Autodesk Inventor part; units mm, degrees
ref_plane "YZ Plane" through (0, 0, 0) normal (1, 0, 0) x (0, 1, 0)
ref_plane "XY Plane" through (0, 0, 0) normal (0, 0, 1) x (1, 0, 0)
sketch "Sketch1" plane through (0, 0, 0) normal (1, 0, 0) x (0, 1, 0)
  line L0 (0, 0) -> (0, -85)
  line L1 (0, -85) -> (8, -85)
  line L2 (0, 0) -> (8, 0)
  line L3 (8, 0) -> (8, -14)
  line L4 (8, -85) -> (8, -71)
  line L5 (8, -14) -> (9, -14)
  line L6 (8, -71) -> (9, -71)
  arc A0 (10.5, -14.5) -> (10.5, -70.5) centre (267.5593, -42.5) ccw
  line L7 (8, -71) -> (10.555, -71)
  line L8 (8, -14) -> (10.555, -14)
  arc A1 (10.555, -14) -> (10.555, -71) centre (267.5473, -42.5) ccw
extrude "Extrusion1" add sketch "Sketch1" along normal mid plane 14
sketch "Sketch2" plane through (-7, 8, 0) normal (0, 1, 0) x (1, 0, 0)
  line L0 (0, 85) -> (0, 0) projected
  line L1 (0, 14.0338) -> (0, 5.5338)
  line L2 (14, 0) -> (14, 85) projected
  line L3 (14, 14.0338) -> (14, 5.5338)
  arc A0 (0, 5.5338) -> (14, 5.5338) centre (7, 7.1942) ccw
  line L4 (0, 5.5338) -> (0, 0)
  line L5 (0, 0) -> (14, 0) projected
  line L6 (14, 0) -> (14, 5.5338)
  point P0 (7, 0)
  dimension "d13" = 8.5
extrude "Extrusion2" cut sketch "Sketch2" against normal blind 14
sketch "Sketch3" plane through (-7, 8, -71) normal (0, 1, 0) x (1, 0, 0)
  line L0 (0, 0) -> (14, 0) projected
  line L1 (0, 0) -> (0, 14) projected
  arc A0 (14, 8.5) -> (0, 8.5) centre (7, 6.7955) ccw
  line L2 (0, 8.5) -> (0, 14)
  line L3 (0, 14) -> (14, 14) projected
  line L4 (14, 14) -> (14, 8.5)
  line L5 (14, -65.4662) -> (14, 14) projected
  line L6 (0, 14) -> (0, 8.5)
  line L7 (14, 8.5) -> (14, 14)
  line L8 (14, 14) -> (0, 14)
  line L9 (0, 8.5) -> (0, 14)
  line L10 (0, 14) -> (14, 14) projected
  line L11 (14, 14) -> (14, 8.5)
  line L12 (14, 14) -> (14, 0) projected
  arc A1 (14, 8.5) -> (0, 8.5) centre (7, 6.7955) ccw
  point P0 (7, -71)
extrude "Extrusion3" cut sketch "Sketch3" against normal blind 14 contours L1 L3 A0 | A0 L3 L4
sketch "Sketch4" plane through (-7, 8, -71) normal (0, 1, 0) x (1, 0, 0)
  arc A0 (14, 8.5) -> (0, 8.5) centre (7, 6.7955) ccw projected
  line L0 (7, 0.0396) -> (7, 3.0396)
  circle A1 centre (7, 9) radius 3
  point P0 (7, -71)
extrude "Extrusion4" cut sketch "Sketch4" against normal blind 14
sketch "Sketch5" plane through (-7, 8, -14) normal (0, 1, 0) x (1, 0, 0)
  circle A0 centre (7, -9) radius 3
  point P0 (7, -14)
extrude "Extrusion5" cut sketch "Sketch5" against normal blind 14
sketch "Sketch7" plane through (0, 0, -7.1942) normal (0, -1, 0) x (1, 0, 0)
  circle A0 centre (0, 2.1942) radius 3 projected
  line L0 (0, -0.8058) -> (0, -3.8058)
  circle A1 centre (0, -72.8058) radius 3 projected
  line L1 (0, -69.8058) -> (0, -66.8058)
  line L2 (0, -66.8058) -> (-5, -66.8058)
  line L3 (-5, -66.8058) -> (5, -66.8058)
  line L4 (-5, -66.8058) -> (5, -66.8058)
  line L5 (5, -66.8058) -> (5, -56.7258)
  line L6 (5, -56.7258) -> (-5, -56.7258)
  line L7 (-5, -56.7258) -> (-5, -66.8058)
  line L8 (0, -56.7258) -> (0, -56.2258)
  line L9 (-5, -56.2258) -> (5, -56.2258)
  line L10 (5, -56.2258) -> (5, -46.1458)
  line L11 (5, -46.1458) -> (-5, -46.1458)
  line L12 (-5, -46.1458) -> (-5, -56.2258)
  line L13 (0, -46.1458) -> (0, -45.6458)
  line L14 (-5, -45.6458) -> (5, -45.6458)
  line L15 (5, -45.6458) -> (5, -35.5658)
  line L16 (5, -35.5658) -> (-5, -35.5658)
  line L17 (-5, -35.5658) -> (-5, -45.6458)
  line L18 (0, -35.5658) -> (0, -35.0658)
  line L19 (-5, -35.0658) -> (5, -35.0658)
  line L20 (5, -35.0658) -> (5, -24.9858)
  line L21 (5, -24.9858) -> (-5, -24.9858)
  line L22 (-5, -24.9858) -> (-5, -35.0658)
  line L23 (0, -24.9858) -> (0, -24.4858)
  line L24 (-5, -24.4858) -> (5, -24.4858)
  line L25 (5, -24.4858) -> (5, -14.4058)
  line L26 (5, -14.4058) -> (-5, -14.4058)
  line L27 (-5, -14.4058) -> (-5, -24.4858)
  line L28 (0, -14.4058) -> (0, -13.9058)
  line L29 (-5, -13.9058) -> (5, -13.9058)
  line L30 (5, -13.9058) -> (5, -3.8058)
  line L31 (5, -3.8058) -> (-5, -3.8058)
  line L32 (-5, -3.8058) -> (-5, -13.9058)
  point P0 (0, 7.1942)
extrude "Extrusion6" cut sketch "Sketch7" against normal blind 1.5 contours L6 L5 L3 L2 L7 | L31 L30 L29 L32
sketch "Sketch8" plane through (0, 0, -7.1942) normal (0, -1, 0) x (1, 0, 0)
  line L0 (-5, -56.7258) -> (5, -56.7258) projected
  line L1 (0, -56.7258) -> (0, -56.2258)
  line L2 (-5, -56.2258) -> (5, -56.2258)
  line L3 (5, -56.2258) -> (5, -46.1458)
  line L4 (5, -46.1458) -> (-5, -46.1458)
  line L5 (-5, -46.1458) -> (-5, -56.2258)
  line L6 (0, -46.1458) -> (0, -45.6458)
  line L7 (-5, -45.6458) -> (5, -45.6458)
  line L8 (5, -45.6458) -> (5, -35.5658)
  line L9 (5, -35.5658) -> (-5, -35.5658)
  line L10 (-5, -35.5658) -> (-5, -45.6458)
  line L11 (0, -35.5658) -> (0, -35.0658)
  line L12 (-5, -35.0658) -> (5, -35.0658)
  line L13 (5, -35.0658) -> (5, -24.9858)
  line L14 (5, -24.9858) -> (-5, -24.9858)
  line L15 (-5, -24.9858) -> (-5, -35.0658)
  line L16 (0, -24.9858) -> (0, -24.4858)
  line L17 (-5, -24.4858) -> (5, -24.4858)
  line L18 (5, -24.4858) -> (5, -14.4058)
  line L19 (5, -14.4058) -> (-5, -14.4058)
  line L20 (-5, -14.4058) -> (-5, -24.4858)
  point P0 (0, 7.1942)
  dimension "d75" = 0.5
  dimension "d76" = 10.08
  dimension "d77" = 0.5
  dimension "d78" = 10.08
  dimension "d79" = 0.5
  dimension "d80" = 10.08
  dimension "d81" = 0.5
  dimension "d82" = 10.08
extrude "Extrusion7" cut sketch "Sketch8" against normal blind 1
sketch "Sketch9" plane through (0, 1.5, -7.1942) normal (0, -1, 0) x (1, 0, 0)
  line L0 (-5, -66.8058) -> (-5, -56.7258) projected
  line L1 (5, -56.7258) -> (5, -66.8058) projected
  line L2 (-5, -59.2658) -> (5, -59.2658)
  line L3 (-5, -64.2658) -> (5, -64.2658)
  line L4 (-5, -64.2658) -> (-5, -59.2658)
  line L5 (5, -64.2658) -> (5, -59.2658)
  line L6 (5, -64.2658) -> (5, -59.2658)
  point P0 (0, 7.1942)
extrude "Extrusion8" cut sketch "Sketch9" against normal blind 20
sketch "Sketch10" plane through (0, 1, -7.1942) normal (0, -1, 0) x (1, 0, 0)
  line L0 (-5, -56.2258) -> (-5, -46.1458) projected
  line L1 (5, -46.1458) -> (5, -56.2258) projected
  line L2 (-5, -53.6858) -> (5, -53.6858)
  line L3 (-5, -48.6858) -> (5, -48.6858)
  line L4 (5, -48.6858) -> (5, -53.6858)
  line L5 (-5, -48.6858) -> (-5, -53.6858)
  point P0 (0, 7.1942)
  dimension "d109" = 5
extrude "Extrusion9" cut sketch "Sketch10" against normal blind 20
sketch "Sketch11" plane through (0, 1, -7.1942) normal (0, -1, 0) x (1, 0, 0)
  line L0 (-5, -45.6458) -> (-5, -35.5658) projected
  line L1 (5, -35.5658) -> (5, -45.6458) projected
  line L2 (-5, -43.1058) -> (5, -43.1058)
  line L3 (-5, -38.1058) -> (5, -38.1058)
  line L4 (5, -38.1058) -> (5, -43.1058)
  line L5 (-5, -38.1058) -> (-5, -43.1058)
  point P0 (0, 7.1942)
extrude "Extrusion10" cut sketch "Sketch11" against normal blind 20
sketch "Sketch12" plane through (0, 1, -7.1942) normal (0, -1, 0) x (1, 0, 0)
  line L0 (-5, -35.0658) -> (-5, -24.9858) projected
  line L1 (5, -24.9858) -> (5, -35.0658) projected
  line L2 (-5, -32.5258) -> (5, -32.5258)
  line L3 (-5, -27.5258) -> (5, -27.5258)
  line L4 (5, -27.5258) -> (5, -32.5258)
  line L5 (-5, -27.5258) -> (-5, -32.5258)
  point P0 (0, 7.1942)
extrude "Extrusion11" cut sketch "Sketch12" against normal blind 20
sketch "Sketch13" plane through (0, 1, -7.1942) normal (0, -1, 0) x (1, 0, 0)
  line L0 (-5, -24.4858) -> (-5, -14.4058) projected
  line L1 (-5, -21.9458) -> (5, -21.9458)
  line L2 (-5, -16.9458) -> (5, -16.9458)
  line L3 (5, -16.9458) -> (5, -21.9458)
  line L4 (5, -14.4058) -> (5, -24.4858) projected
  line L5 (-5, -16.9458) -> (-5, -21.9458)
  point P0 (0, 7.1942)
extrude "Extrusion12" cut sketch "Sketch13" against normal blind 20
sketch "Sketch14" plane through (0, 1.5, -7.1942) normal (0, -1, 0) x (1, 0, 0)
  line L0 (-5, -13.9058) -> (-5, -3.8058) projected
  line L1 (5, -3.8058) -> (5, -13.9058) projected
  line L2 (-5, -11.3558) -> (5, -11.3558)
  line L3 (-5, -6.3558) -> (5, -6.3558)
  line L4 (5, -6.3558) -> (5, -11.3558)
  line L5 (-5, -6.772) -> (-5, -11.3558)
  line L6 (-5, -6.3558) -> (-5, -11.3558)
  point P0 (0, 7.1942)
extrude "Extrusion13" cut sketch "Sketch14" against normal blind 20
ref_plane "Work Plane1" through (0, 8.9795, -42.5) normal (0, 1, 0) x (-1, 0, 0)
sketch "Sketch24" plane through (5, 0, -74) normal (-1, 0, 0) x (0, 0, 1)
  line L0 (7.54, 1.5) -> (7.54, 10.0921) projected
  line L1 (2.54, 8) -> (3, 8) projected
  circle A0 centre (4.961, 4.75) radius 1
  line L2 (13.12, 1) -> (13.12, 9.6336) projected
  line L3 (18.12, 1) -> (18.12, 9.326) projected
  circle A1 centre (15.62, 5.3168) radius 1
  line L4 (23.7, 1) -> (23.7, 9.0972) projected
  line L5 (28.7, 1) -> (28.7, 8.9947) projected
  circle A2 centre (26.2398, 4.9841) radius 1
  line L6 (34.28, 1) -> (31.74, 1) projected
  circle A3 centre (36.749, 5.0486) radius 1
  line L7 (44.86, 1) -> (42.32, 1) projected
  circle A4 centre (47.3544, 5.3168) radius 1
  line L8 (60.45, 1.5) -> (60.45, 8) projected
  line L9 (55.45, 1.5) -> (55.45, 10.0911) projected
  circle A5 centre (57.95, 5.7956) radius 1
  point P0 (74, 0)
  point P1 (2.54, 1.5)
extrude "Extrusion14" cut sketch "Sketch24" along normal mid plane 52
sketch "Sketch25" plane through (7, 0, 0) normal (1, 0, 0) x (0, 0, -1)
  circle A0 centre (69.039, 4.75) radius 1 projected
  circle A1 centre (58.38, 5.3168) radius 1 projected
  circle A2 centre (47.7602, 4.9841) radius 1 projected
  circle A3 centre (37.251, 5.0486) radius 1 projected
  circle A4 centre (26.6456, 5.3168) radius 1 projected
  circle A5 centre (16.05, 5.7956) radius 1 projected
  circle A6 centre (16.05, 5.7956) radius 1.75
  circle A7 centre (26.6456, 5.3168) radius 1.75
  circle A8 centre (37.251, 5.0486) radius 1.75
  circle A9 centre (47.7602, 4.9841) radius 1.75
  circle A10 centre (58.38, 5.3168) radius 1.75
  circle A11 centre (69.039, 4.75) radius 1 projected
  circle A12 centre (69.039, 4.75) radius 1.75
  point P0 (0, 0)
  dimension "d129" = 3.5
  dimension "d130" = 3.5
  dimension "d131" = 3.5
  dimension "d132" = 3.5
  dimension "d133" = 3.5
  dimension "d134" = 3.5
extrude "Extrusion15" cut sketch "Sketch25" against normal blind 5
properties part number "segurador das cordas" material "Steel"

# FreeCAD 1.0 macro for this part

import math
import FreeCAD as App
import Part
import Sketcher
from FreeCAD import Vector
Q = App.Units.Quantity


def add_polygon(sketch, points):
    """Adds a closed chain of lines whose ends are joined by coincident constraints."""
    first, n = sketch.GeometryCount, len(points)
    for a, b in zip(points, points[1:] + points[:1]):
        sketch.addGeometry(Part.LineSegment(App.Vector(*a, 0), App.Vector(*b, 0)), False)
    for i in range(n):
        sketch.addConstraint(Sketcher.Constraint("Coincident", first + i, 2, first + (i + 1) % n, 1))

doc = App.newDocument("Part")
body = doc.addObject("PartDesign::Body", "Body")

# Sketch on YZ plane
sketch1 = doc.addObject("Sketcher::SketchObject", "Sketch")
body.addObject(sketch1)
sketch1.AttachmentSupport = (doc.YZ_Plane, [""])
sketch1.MapMode = "FlatFace"
sketch1.addGeometry(Part.LineSegment(Vector(8, 0, 0), Vector(0, 0, 0)), False)
sketch1.addGeometry(Part.LineSegment(Vector(0, 0, 0), Vector(0, -85, 0)), False)
sketch1.addGeometry(Part.LineSegment(Vector(0, -85, 0), Vector(8, -85, 0)), False)
sketch1.addGeometry(Part.LineSegment(Vector(8, -85, 0), Vector(8, -71, 0)), False)
sketch1.addGeometry(Part.LineSegment(Vector(8, -71, 0), Vector(10.555, -71, 0)), False)
sketch1.addGeometry(Part.ArcOfCircle(Part.Circle(Vector(267.5473, -42.5, 0), Vector(0, 0, 1), 258.567771), math.radians(-173.783318), math.radians(-173.671855)), False)
sketch1.addGeometry(Part.ArcOfCircle(Part.Circle(Vector(267.5593, -42.5, 0), Vector(0, 0, 1), 258.579743), math.radians(173.783606), math.radians(186.216394)), False)
sketch1.addGeometry(Part.ArcOfCircle(Part.Circle(Vector(267.5473, -42.5, 0), Vector(0, 0, 1), 258.567771), math.radians(173.671855), math.radians(173.783318)), False)
sketch1.addGeometry(Part.LineSegment(Vector(10.555, -14, 0), Vector(8, -14, 0)), False)
sketch1.addGeometry(Part.LineSegment(Vector(8, -14, 0), Vector(8, 0, 0)), False)
sketch1.addConstraint(Sketcher.Constraint("Coincident", 0, 2, 1, 1))
sketch1.addConstraint(Sketcher.Constraint("Coincident", 1, 2, 2, 1))
sketch1.addConstraint(Sketcher.Constraint("Coincident", 2, 2, 3, 1))
sketch1.addConstraint(Sketcher.Constraint("Coincident", 3, 2, 4, 1))
sketch1.addConstraint(Sketcher.Constraint("Coincident", 4, 2, 5, 2))
sketch1.addConstraint(Sketcher.Constraint("Coincident", 5, 1, 6, 2))
sketch1.addConstraint(Sketcher.Constraint("Coincident", 6, 1, 7, 2))
sketch1.addConstraint(Sketcher.Constraint("Coincident", 7, 1, 8, 1))
sketch1.addConstraint(Sketcher.Constraint("Coincident", 8, 2, 9, 1))
sketch1.addConstraint(Sketcher.Constraint("Coincident", 9, 2, 0, 1))
sketch1.addConstraint(Sketcher.Constraint("Horizontal", 0))
sketch1.addConstraint(Sketcher.Constraint("Vertical", 1))
sketch1.addConstraint(Sketcher.Constraint("Horizontal", 2))
sketch1.addConstraint(Sketcher.Constraint("Vertical", 3))
sketch1.addConstraint(Sketcher.Constraint("Horizontal", 4))
sketch1.addConstraint(Sketcher.Constraint("Horizontal", 8))
sketch1.addConstraint(Sketcher.Constraint("Vertical", 9))
sketch1.addConstraint(Sketcher.Constraint("Coincident", 0, 2, -1, 1))
sketch1.addConstraint(Sketcher.Constraint("Coincident", 7, 3, 5, 3))
sketch1.addConstraint(Sketcher.Constraint("DistanceX", 0, 2, 0, 1, Q("8 mm")))
sketch1.addConstraint(Sketcher.Constraint("DistanceX", 2, 1, 2, 2, Q("8 mm")))
sketch1.addConstraint(Sketcher.Constraint("DistanceY", 1, 2, 1, 1, Q("85 mm")))
sketch1.addConstraint(Sketcher.Constraint("DistanceY", 3, 1, 3, 2, Q("14 mm")))
sketch1.addConstraint(Sketcher.Constraint("DistanceY", 9, 1, 9, 2, Q("14 mm")))
sketch1.addConstraint(Sketcher.Constraint("DistanceY", 5, 1, 6, 1, Q("56 mm")))
sketch1.addConstraint(Sketcher.Constraint("DistanceY", 5, 3, -1, 1, Q("42.5 mm")))
sketch1.addConstraint(Sketcher.Constraint("DistanceY", 6, 3, -1, 1, Q("42.5 mm")))
sketch1.addConstraint(Sketcher.Constraint("DistanceX", -1, 1, 5, 1, Q("10.5 mm")))
sketch1.addConstraint(Sketcher.Constraint("DistanceY", 5, 1, -1, 1, Q("70.5 mm")))
sketch1.addConstraint(Sketcher.Constraint("Radius", 5, Q("258.5678 mm")))
sketch1.addConstraint(Sketcher.Constraint("Radius", 6, Q("258.5797 mm")))
pad1 = doc.addObject("PartDesign::Pad", "Pad")
body.addObject(pad1)
pad1.Profile = sketch1
pad1.Length = 14
pad1.Midplane = True

# Sketch on XZ plane
sketch2 = doc.addObject("Sketcher::SketchObject", "Sketch001")
body.addObject(sketch2)
sketch2.AttachmentSupport = (doc.XZ_Plane, [""])
sketch2.MapMode = "FlatFace"
sketch2.AttachmentOffset = App.Placement(Vector(0, 0, -8), App.Rotation())
sketch2.addGeometry(Part.ArcOfCircle(Part.Circle(Vector(0, -7, 0), Vector(0, 0, 1), 7), math.radians(90), math.radians(167)), False)
sketch2.addGeometry(Part.LineSegment(Vector(-7, -6, 0), Vector(-7, 0, 0)), False)
sketch2.addGeometry(Part.LineSegment(Vector(-7, 0, 0), Vector(0, 0, 0)), False)
sketch2.addGeometry(Part.ArcOfCircle(Part.Circle(Vector(0, -7, 0), Vector(0, 0, 1), 7), math.radians(13), math.radians(90)), False)
sketch2.addGeometry(Part.LineSegment(Vector(0, 0, 0), Vector(7, 0, 0)), False)
sketch2.addGeometry(Part.LineSegment(Vector(7, 0, 0), Vector(7, -6, 0)), False)
sketch2.addConstraint(Sketcher.Constraint("Coincident", 0, 2, 1, 1))
sketch2.addConstraint(Sketcher.Constraint("Coincident", 1, 2, 2, 1))
sketch2.addConstraint(Sketcher.Constraint("Tangent", 2, 2, 0, 1))
sketch2.addConstraint(Sketcher.Constraint("Tangent", 3, 2, 4, 1))
sketch2.addConstraint(Sketcher.Constraint("Coincident", 4, 2, 5, 1))
sketch2.addConstraint(Sketcher.Constraint("Coincident", 5, 2, 3, 1))
sketch2.addConstraint(Sketcher.Constraint("Vertical", 1))
sketch2.addConstraint(Sketcher.Constraint("Horizontal", 2))
sketch2.addConstraint(Sketcher.Constraint("Horizontal", 4))
sketch2.addConstraint(Sketcher.Constraint("Vertical", 5))
sketch2.addConstraint(Sketcher.Constraint("Coincident", 2, 2, -1, 1))
sketch2.addConstraint(Sketcher.Constraint("Coincident", 3, 2, -1, 1))
sketch2.addConstraint(Sketcher.Constraint("Equal", 0, 3))
sketch2.addConstraint(Sketcher.Constraint("Horizontal", 0, 2, 5, 2))
sketch2.addConstraint(Sketcher.Constraint("DistanceX", 2, 1, 2, 2, Q("7 mm")))
sketch2.addConstraint(Sketcher.Constraint("Radius", 0, Q("7.1942 mm")))
pocket1 = doc.addObject("PartDesign::Pocket", "Pocket")
body.addObject(pocket1)
pocket1.Profile = sketch2
pocket1.Length = 14
pocket1.Reversed = True

# Sketch on XZ plane
sketch3 = doc.addObject("Sketcher::SketchObject", "Sketch002")
body.addObject(sketch3)
sketch3.AttachmentSupport = (doc.XZ_Plane, [""])
sketch3.MapMode = "FlatFace"
sketch3.AttachmentOffset = App.Placement(Vector(0, 0, -8), App.Rotation())
sketch3.addGeometry(Part.LineSegment(Vector(-7, -85, 0), Vector(-7, -80, 0)), False)
sketch3.addGeometry(Part.ArcOfCircle(Part.Circle(Vector(0, -78, 0), Vector(0, 0, 1), 7), math.radians(-166), math.radians(-90)), False)
sketch3.addGeometry(Part.LineSegment(Vector(0, -85, 0), Vector(-7, -85, 0)), False)
sketch3.addGeometry(Part.ArcOfCircle(Part.Circle(Vector(0, -78, 0), Vector(0, 0, 1), 7), math.radians(-90), math.radians(-14)), False)
sketch3.addGeometry(Part.LineSegment(Vector(7, -80, 0), Vector(7, -85, 0)), False)
sketch3.addGeometry(Part.LineSegment(Vector(7, -85, 0), Vector(0, -85, 0)), False)
sketch3.addConstraint(Sketcher.Constraint("Coincident", 0, 2, 1, 1))
sketch3.addConstraint(Sketcher.Constraint("Tangent", 1, 2, 2, 1))
sketch3.addConstraint(Sketcher.Constraint("Coincident", 2, 2, 0, 1))
sketch3.addConstraint(Sketcher.Constraint("Coincident", 3, 2, 4, 1))
sketch3.addConstraint(Sketcher.Constraint("Coincident", 4, 2, 5, 1))
sketch3.addConstraint(Sketcher.Constraint("Tangent", 5, 2, 3, 1))
sketch3.addConstraint(Sketcher.Constraint("Vertical", 0))
sketch3.addConstraint(Sketcher.Constraint("Horizontal", 2))
sketch3.addConstraint(Sketcher.Constraint("Vertical", 4))
sketch3.addConstraint(Sketcher.Constraint("Horizontal", 5))
sketch3.addConstraint(Sketcher.Constraint("Coincident", 3, 3, 1, 3))
sketch3.addConstraint(Sketcher.Constraint("Equal", 1, 3))
sketch3.addConstraint(Sketcher.Constraint("Symmetric", 0, 2, 3, 2, -2))
sketch3.addConstraint(Sketcher.Constraint("DistanceX", 2, 2, 2, 1, Q("7 mm")))
sketch3.addConstraint(Sketcher.Constraint("DistanceY", 0, 1, 0, 2, Q("5.5 mm")))
sketch3.addConstraint(Sketcher.Constraint("DistanceY", 1, 2, -1, 1, Q("85 mm")))
pocket2 = doc.addObject("PartDesign::Pocket", "Pocket001")
body.addObject(pocket2)
pocket2.Profile = sketch3
pocket2.Length = 14
pocket2.Reversed = True

# Sketch on XZ plane
sketch4 = doc.addObject("Sketcher::SketchObject", "Sketch003")
body.addObject(sketch4)
sketch4.AttachmentSupport = (doc.XZ_Plane, [""])
sketch4.MapMode = "FlatFace"
sketch4.AttachmentOffset = App.Placement(Vector(0, 0, -8), App.Rotation())
sketch4.addGeometry(Part.Circle(Vector(0, -80, 0), Vector(0, 0, 1), 3), False)
sketch4.addConstraint(Sketcher.Constraint("PointOnObject", 0, 3, -2))
sketch4.addConstraint(Sketcher.Constraint("Diameter", 0, Q("6 mm")))
sketch4.addConstraint(Sketcher.Constraint("DistanceY", 0, 3, -1, 1, Q("80 mm")))
pocket3 = doc.addObject("PartDesign::Pocket", "Pocket002")
body.addObject(pocket3)
pocket3.Profile = sketch4
pocket3.Length = 14
pocket3.Reversed = True

# Sketch on XZ plane
sketch5 = doc.addObject("Sketcher::SketchObject", "Sketch004")
body.addObject(sketch5)
sketch5.AttachmentSupport = (doc.XZ_Plane, [""])
sketch5.MapMode = "FlatFace"
sketch5.AttachmentOffset = App.Placement(Vector(0, 0, -8), App.Rotation())
sketch5.addGeometry(Part.Circle(Vector(0, -5, 0), Vector(0, 0, 1), 3), False)
sketch5.addConstraint(Sketcher.Constraint("PointOnObject", 0, 3, -2))
sketch5.addConstraint(Sketcher.Constraint("Diameter", 0, Q("6 mm")))
sketch5.addConstraint(Sketcher.Constraint("DistanceY", 0, 3, -1, 1, Q("5 mm")))
pocket4 = doc.addObject("PartDesign::Pocket", "Pocket003")
body.addObject(pocket4)
pocket4.Profile = sketch5
pocket4.Length = 14
pocket4.Reversed = True

# Sketch on XZ plane
sketch6 = doc.addObject("Sketcher::SketchObject", "Sketch005")
body.addObject(sketch6)
sketch6.AttachmentSupport = (doc.XZ_Plane, [""])
sketch6.MapMode = "FlatFace"
add_polygon(sketch6, [(5, -64), (-5, -64), (-5, -74), (5, -74)])  # lines 0-3
add_polygon(sketch6, [(5, -11), (-5, -11), (-5, -21), (5, -21)])  # lines 4-7
sketch6.addConstraint(Sketcher.Constraint("Horizontal", 0))
sketch6.addConstraint(Sketcher.Constraint("Vertical", 1))
sketch6.addConstraint(Sketcher.Constraint("Horizontal", 2))
sketch6.addConstraint(Sketcher.Constraint("Vertical", 3))
sketch6.addConstraint(Sketcher.Constraint("Horizontal", 4))
sketch6.addConstraint(Sketcher.Constraint("Vertical", 5))
sketch6.addConstraint(Sketcher.Constraint("Horizontal", 6))
sketch6.addConstraint(Sketcher.Constraint("Vertical", 7))
sketch6.addConstraint(Sketcher.Constraint("Vertical", 1, 2, 4, 2))
sketch6.addConstraint(Sketcher.Constraint("Vertical", 3, 2, 6, 2))
sketch6.addConstraint(Sketcher.Constraint("DistanceX", 0, 2, 0, 1, Q("10 mm")))
sketch6.addConstraint(Sketcher.Constraint("DistanceY", 5, 2, 5, 1, Q("10.1 mm")))
sketch6.addConstraint(Sketcher.Constraint("DistanceX", 0, 2, -1, 1, Q("5 mm")))
sketch6.addConstraint(Sketcher.Constraint("DistanceY", 1, 2, -1, 1, Q("74 mm")))
sketch6.addConstraint(Sketcher.Constraint("DistanceY", 4, 2, -1, 1, Q("11 mm")))
sketch6.addConstraint(Sketcher.Constraint("DistanceY", 1, 2, 1, 1, Q("10.08 mm")))
pocket5 = doc.addObject("PartDesign::Pocket", "Pocket004")
body.addObject(pocket5)
pocket5.Profile = sketch6
pocket5.Length = 1.5

# Sketch on XZ plane
sketch7 = doc.addObject("Sketcher::SketchObject", "Sketch006")
body.addObject(sketch7)
sketch7.AttachmentSupport = (doc.XZ_Plane, [""])
sketch7.MapMode = "FlatFace"
add_polygon(sketch7, [(-5, -53), (-5, -63), (5, -63), (5, -53)])  # lines 0-3
add_polygon(sketch7, [(-5, -32), (5, -32), (5, -22), (-5, -22)])  # lines 4-7
add_polygon(sketch7, [(-5, -42), (5, -42), (5, -32), (-5, -32)])  # lines 8-11
add_polygon(sketch7, [(-5, -53), (5, -53), (5, -43), (-5, -43)])  # lines 12-15
sketch7.addConstraint(Sketcher.Constraint("Vertical", 0))
sketch7.addConstraint(Sketcher.Constraint("Horizontal", 1))
sketch7.addConstraint(Sketcher.Constraint("Vertical", 2))
sketch7.addConstraint(Sketcher.Constraint("Horizontal", 3))
sketch7.addConstraint(Sketcher.Constraint("Horizontal", 4))
sketch7.addConstraint(Sketcher.Constraint("Vertical", 5))
sketch7.addConstraint(Sketcher.Constraint("Horizontal", 6))
sketch7.addConstraint(Sketcher.Constraint("Vertical", 7))
sketch7.addConstraint(Sketcher.Constraint("Horizontal", 8))
sketch7.addConstraint(Sketcher.Constraint("Vertical", 9))
sketch7.addConstraint(Sketcher.Constraint("Horizontal", 10))
sketch7.addConstraint(Sketcher.Constraint("Vertical", 11))
sketch7.addConstraint(Sketcher.Constraint("Horizontal", 12))
sketch7.addConstraint(Sketcher.Constraint("Vertical", 13))
sketch7.addConstraint(Sketcher.Constraint("Horizontal", 14))
sketch7.addConstraint(Sketcher.Constraint("Vertical", 15))
sketch7.addConstraint(Sketcher.Constraint("Vertical", 2, 2, 4, 2))
sketch7.addConstraint(Sketcher.Constraint("Vertical", 3, 2, 6, 2))
sketch7.addConstraint(Sketcher.Constraint("Vertical", 5, 2, 8, 2))
sketch7.addConstraint(Sketcher.Constraint("Vertical", 7, 2, 10, 2))
sketch7.addConstraint(Sketcher.Constraint("Vertical", 9, 2, 12, 2))
sketch7.addConstraint(Sketcher.Constraint("Vertical", 11, 2, 14, 2))
sketch7.addConstraint(Sketcher.Constraint("Equal", 2, 5))
sketch7.addConstraint(Sketcher.Constraint("Equal", 7, 9))
sketch7.addConstraint(Sketcher.Constraint("Equal", 11, 13))
sketch7.addConstraint(Sketcher.Constraint("DistanceY", 0, 2, 0, 1, Q("10.08 mm")))
sketch7.addConstraint(Sketcher.Constraint("DistanceY", 9, 2, 4, 2, Q("0.5 mm")))
sketch7.addConstraint(Sketcher.Constraint("DistanceY", 2, 2, 12, 2, Q("0.5 mm")))
sketch7.addConstraint(Sketcher.Constraint("DistanceY", 13, 2, 8, 2, Q("0.5 mm")))
sketch7.addConstraint(Sketcher.Constraint("DistanceX", 1, 1, 1, 2, Q("10 mm")))
sketch7.addConstraint(Sketcher.Constraint("DistanceX", 0, 2, -1, 1, Q("5 mm")))
sketch7.addConstraint(Sketcher.Constraint("DistanceY", 5, 2, -1, 1, Q("21.6 mm")))
pocket6 = doc.addObject("PartDesign::Pocket", "Pocket005")
body.addObject(pocket6)
pocket6.Profile = sketch7
pocket6.Length = 1

# Sketch on XZ plane
sketch8 = doc.addObject("Sketcher::SketchObject", "Sketch007")
body.addObject(sketch8)
sketch8.AttachmentSupport = (doc.XZ_Plane, [""])
sketch8.MapMode = "FlatFace"
sketch8.AttachmentOffset = App.Placement(Vector(0, 0, -1.5), App.Rotation())
add_polygon(sketch8, [(-5, -66), (-5, -71), (5, -71), (5, -66)])  # lines 0-3
sketch8.addConstraint(Sketcher.Constraint("Vertical", 0))
sketch8.addConstraint(Sketcher.Constraint("Horizontal", 1))
sketch8.addConstraint(Sketcher.Constraint("Vertical", 2))
sketch8.addConstraint(Sketcher.Constraint("Horizontal", 3))
sketch8.addConstraint(Sketcher.Constraint("DistanceX", 1, 1, 1, 2, Q("10 mm")))
sketch8.addConstraint(Sketcher.Constraint("DistanceY", 0, 2, 0, 1, Q("5 mm")))
sketch8.addConstraint(Sketcher.Constraint("DistanceX", 0, 2, -1, 1, Q("5 mm")))
sketch8.addConstraint(Sketcher.Constraint("DistanceY", 0, 2, -1, 1, Q("71.46 mm")))
pocket7 = doc.addObject("PartDesign::Pocket", "Pocket006")
body.addObject(pocket7)
pocket7.Profile = sketch8
pocket7.Length = 20

# Sketch on XZ plane
sketch9 = doc.addObject("Sketcher::SketchObject", "Sketch008")
body.addObject(sketch9)
sketch9.AttachmentSupport = (doc.XZ_Plane, [""])
sketch9.MapMode = "FlatFace"
sketch9.AttachmentOffset = App.Placement(Vector(0, 0, -1), App.Rotation())
add_polygon(sketch9, [(-5, -56), (-5, -61), (5, -61), (5, -56)])  # lines 0-3
sketch9.addConstraint(Sketcher.Constraint("Vertical", 0))
sketch9.addConstraint(Sketcher.Constraint("Horizontal", 1))
sketch9.addConstraint(Sketcher.Constraint("Vertical", 2))
sketch9.addConstraint(Sketcher.Constraint("Horizontal", 3))
sketch9.addConstraint(Sketcher.Constraint("DistanceY", 0, 2, 0, 1, Q("5 mm")))
sketch9.addConstraint(Sketcher.Constraint("DistanceX", 0, 2, -1, 1, Q("5 mm")))
sketch9.addConstraint(Sketcher.Constraint("DistanceX", -1, 1, 1, 2, Q("5 mm")))
sketch9.addConstraint(Sketcher.Constraint("DistanceY", 0, 2, -1, 1, Q("60.88 mm")))
pocket8 = doc.addObject("PartDesign::Pocket", "Pocket007")
body.addObject(pocket8)
pocket8.Profile = sketch9
pocket8.Length = 20

# Sketch on XZ plane
sketch10 = doc.addObject("Sketcher::SketchObject", "Sketch009")
body.addObject(sketch10)
sketch10.AttachmentSupport = (doc.XZ_Plane, [""])
sketch10.MapMode = "FlatFace"
sketch10.AttachmentOffset = App.Placement(Vector(0, 0, -1), App.Rotation())
add_polygon(sketch10, [(-5, -45), (-5, -50), (5, -50), (5, -45)])  # lines 0-3
sketch10.addConstraint(Sketcher.Constraint("Vertical", 0))
sketch10.addConstraint(Sketcher.Constraint("Horizontal", 1))
sketch10.addConstraint(Sketcher.Constraint("Vertical", 2))
sketch10.addConstraint(Sketcher.Constraint("Horizontal", 3))
sketch10.addConstraint(Sketcher.Constraint("DistanceX", 1, 1, 1, 2, Q("10 mm")))
sketch10.addConstraint(Sketcher.Constraint("DistanceY", 0, 2, 0, 1, Q("5 mm")))
sketch10.addConstraint(Sketcher.Constraint("DistanceX", 0, 2, -1, 1, Q("5 mm")))
sketch10.addConstraint(Sketcher.Constraint("DistanceY", 0, 2, -1, 1, Q("50.3 mm")))
pocket9 = doc.addObject("PartDesign::Pocket", "Pocket008")
body.addObject(pocket9)
pocket9.Profile = sketch10
pocket9.Length = 20

# Sketch on XZ plane
sketch11 = doc.addObject("Sketcher::SketchObject", "Sketch010")
body.addObject(sketch11)
sketch11.AttachmentSupport = (doc.XZ_Plane, [""])
sketch11.MapMode = "FlatFace"
sketch11.AttachmentOffset = App.Placement(Vector(0, 0, -1), App.Rotation())
add_polygon(sketch11, [(-5, -35), (-5, -40), (5, -40), (5, -35)])  # lines 0-3
sketch11.addConstraint(Sketcher.Constraint("Vertical", 0))
sketch11.addConstraint(Sketcher.Constraint("Horizontal", 1))
sketch11.addConstraint(Sketcher.Constraint("Vertical", 2))
sketch11.addConstraint(Sketcher.Constraint("Horizontal", 3))
sketch11.addConstraint(Sketcher.Constraint("DistanceX", 1, 1, 1, 2, Q("10 mm")))
sketch11.addConstraint(Sketcher.Constraint("DistanceY", 0, 2, 0, 1, Q("5 mm")))
sketch11.addConstraint(Sketcher.Constraint("DistanceX", 0, 2, -1, 1, Q("5 mm")))
sketch11.addConstraint(Sketcher.Constraint("DistanceY", 0, 2, -1, 1, Q("39.72 mm")))
pocket10 = doc.addObject("PartDesign::Pocket", "Pocket009")
body.addObject(pocket10)
pocket10.Profile = sketch11
pocket10.Length = 20

# Sketch on XZ plane
sketch12 = doc.addObject("Sketcher::SketchObject", "Sketch011")
body.addObject(sketch12)
sketch12.AttachmentSupport = (doc.XZ_Plane, [""])
sketch12.MapMode = "FlatFace"
sketch12.AttachmentOffset = App.Placement(Vector(0, 0, -1), App.Rotation())
add_polygon(sketch12, [(-5, -24), (-5, -29), (5, -29), (5, -24)])  # lines 0-3
sketch12.addConstraint(Sketcher.Constraint("Vertical", 0))
sketch12.addConstraint(Sketcher.Constraint("Horizontal", 1))
sketch12.addConstraint(Sketcher.Constraint("Vertical", 2))
sketch12.addConstraint(Sketcher.Constraint("Horizontal", 3))
sketch12.addConstraint(Sketcher.Constraint("DistanceX", 1, 1, 1, 2, Q("10 mm")))
sketch12.addConstraint(Sketcher.Constraint("DistanceY", 0, 2, 0, 1, Q("5 mm")))
sketch12.addConstraint(Sketcher.Constraint("DistanceX", 0, 2, -1, 1, Q("5 mm")))
sketch12.addConstraint(Sketcher.Constraint("DistanceY", 0, 2, -1, 1, Q("29.14 mm")))
pocket11 = doc.addObject("PartDesign::Pocket", "Pocket010")
body.addObject(pocket11)
pocket11.Profile = sketch12
pocket11.Length = 20

# Sketch on XZ plane
sketch13 = doc.addObject("Sketcher::SketchObject", "Sketch012")
body.addObject(sketch13)
sketch13.AttachmentSupport = (doc.XZ_Plane, [""])
sketch13.MapMode = "FlatFace"
sketch13.AttachmentOffset = App.Placement(Vector(0, 0, -1.5), App.Rotation())
add_polygon(sketch13, [(-5, -14), (-5, -19), (5, -19), (5, -14)])  # lines 0-3
sketch13.addConstraint(Sketcher.Constraint("Vertical", 0))
sketch13.addConstraint(Sketcher.Constraint("Horizontal", 1))
sketch13.addConstraint(Sketcher.Constraint("Vertical", 2))
sketch13.addConstraint(Sketcher.Constraint("Horizontal", 3))
sketch13.addConstraint(Sketcher.Constraint("DistanceX", 1, 1, 1, 2, Q("10 mm")))
sketch13.addConstraint(Sketcher.Constraint("DistanceY", 0, 2, 0, 1, Q("5 mm")))
sketch13.addConstraint(Sketcher.Constraint("DistanceX", 0, 2, -1, 1, Q("5 mm")))
sketch13.addConstraint(Sketcher.Constraint("DistanceY", 0, 2, -1, 1, Q("18.55 mm")))
pocket12 = doc.addObject("PartDesign::Pocket", "Pocket011")
body.addObject(pocket12)
pocket12.Profile = sketch13
pocket12.Length = 20

# Sketch on YZ plane
sketch14 = doc.addObject("Sketcher::SketchObject", "Sketch013")
body.addObject(sketch14)
sketch14.AttachmentSupport = (doc.YZ_Plane, [""])
sketch14.MapMode = "FlatFace"
sketch14.AttachmentOffset = App.Placement(Vector(0, 0, 5), App.Rotation())
sketch14.addGeometry(Part.Circle(Vector(4.8, -69, 0), Vector(0, 0, 1), 1), False)
sketch14.addGeometry(Part.Circle(Vector(5.3, -58.4, 0), Vector(0, 0, 1), 1), False)
sketch14.addGeometry(Part.Circle(Vector(5, -47.8, 0), Vector(0, 0, 1), 1), False)
sketch14.addGeometry(Part.Circle(Vector(5, -37.3, 0), Vector(0, 0, 1), 1), False)
sketch14.addGeometry(Part.Circle(Vector(5.3, -26.6, 0), Vector(0, 0, 1), 1), False)
sketch14.addGeometry(Part.Circle(Vector(5.8, -16.1, 0), Vector(0, 0, 1), 1), False)
sketch14.addConstraint(Sketcher.Constraint("Equal", 0, 1))
sketch14.addConstraint(Sketcher.Constraint("Equal", 1, 2))
sketch14.addConstraint(Sketcher.Constraint("Equal", 2, 3))
sketch14.addConstraint(Sketcher.Constraint("Equal", 3, 4))
sketch14.addConstraint(Sketcher.Constraint("Equal", 4, 5))
sketch14.addConstraint(Sketcher.Constraint("Vertical", 1, 3, 4, 3))
sketch14.addConstraint(Sketcher.Constraint("Diameter", 0, Q("2 mm")))
sketch14.addConstraint(Sketcher.Constraint("DistanceX", -1, 1, 0, 3, Q("4.75 mm")))
sketch14.addConstraint(Sketcher.Constraint("DistanceY", 1, 3, -1, 1, Q("58.38 mm")))
sketch14.addConstraint(Sketcher.Constraint("DistanceY", 5, 3, -1, 1, Q("16.05 mm")))
sketch14.addConstraint(Sketcher.Constraint("DistanceY", 0, 3, -1, 1, Q("69.039 mm")))
sketch14.addConstraint(Sketcher.Constraint("DistanceX", -1, 1, 2, 3, Q("4.984 mm")))
sketch14.addConstraint(Sketcher.Constraint("DistanceY", 3, 3, -1, 1, Q("37.251 mm")))
sketch14.addConstraint(Sketcher.Constraint("DistanceX", 3, 3, 5, 3, Q("0.747 mm")))
sketch14.addConstraint(Sketcher.Constraint("DistanceX", -1, 1, 1, 3, Q("5.3168 mm")))
sketch14.addConstraint(Sketcher.Constraint("DistanceY", 2, 3, -1, 1, Q("47.7602 mm")))
sketch14.addConstraint(Sketcher.Constraint("DistanceX", -1, 1, 3, 3, Q("5.0486 mm")))
sketch14.addConstraint(Sketcher.Constraint("DistanceY", 4, 3, -1, 1, Q("26.6456 mm")))
pocket13 = doc.addObject("PartDesign::Pocket", "Pocket012")
body.addObject(pocket13)
pocket13.Profile = sketch14
pocket13.Length = 52
pocket13.Midplane = True

# Sketch on YZ plane
sketch15 = doc.addObject("Sketcher::SketchObject", "Sketch014")
body.addObject(sketch15)
sketch15.AttachmentSupport = (doc.YZ_Plane, [""])
sketch15.MapMode = "FlatFace"
sketch15.AttachmentOffset = App.Placement(Vector(0, 0, 7), App.Rotation())
sketch15.addGeometry(Part.Circle(Vector(5.8, -16.1, 0), Vector(0, 0, 1), 1.8), False)
sketch15.addGeometry(Part.Circle(Vector(5.8, -16.1, 0), Vector(0, 0, 1), 1), False)
sketch15.addGeometry(Part.Circle(Vector(5.3, -26.6, 0), Vector(0, 0, 1), 1.8), False)
sketch15.addGeometry(Part.Circle(Vector(5.3, -26.6, 0), Vector(0, 0, 1), 1), False)
sketch15.addGeometry(Part.Circle(Vector(5, -37.3, 0), Vector(0, 0, 1), 1.8), False)
sketch15.addGeometry(Part.Circle(Vector(5, -37.3, 0), Vector(0, 0, 1), 1), False)
sketch15.addGeometry(Part.Circle(Vector(5, -47.8, 0), Vector(0, 0, 1), 1.8), False)
sketch15.addGeometry(Part.Circle(Vector(5, -47.8, 0), Vector(0, 0, 1), 1), False)
sketch15.addGeometry(Part.Circle(Vector(5.3, -58.4, 0), Vector(0, 0, 1), 1.8), False)
sketch15.addGeometry(Part.Circle(Vector(5.3, -58.4, 0), Vector(0, 0, 1), 1), False)
sketch15.addGeometry(Part.Circle(Vector(4.8, -69, 0), Vector(0, 0, 1), 1.8), False)
sketch15.addGeometry(Part.Circle(Vector(4.8, -69, 0), Vector(0, 0, 1), 1), False)
sketch15.addConstraint(Sketcher.Constraint("Coincident", 1, 3, 0, 3))
sketch15.addConstraint(Sketcher.Constraint("Coincident", 3, 3, 2, 3))
sketch15.addConstraint(Sketcher.Constraint("Coincident", 5, 3, 4, 3))
sketch15.addConstraint(Sketcher.Constraint("Coincident", 7, 3, 6, 3))
sketch15.addConstraint(Sketcher.Constraint("Coincident", 9, 3, 8, 3))
sketch15.addConstraint(Sketcher.Constraint("Coincident", 11, 3, 10, 3))
sketch15.addConstraint(Sketcher.Constraint("Equal", 0, 2))
sketch15.addConstraint(Sketcher.Constraint("Equal", 1, 3))
sketch15.addConstraint(Sketcher.Constraint("Equal", 2, 4))
sketch15.addConstraint(Sketcher.Constraint("Equal", 3, 5))
sketch15.addConstraint(Sketcher.Constraint("Equal", 4, 6))
sketch15.addConstraint(Sketcher.Constraint("Equal", 5, 7))
sketch15.addConstraint(Sketcher.Constraint("Equal", 6, 8))
sketch15.addConstraint(Sketcher.Constraint("Equal", 7, 9))
sketch15.addConstraint(Sketcher.Constraint("Equal", 8, 10))
sketch15.addConstraint(Sketcher.Constraint("Equal", 9, 11))
sketch15.addConstraint(Sketcher.Constraint("Vertical", 3, 3, 8, 3))
sketch15.addConstraint(Sketcher.Constraint("Diameter", 0, Q("3.5 mm")))
sketch15.addConstraint(Sketcher.Constraint("Diameter", 1, Q("2 mm")))
sketch15.addConstraint(Sketcher.Constraint("DistanceY", 0, 3, -1, 1, Q("16.05 mm")))
sketch15.addConstraint(Sketcher.Constraint("DistanceY", 8, 3, -1, 1, Q("58.38 mm")))
sketch15.addConstraint(Sketcher.Constraint("DistanceX", -1, 1, 10, 3, Q("4.75 mm")))
sketch15.addConstraint(Sketcher.Constraint("DistanceY", 4, 3, -1, 1, Q("37.251 mm")))
sketch15.addConstraint(Sketcher.Constraint("DistanceX", -1, 1, 6, 3, Q("4.984 mm")))
sketch15.addConstraint(Sketcher.Constraint("DistanceY", 10, 3, -1, 1, Q("69.039 mm")))
sketch15.addConstraint(Sketcher.Constraint("DistanceX", 4, 3, 0, 3, Q("0.747 mm")))
sketch15.addConstraint(Sketcher.Constraint("DistanceX", -1, 1, 0, 3, Q("5.7956 mm")))
sketch15.addConstraint(Sketcher.Constraint("DistanceX", -1, 1, 2, 3, Q("5.3168 mm")))
sketch15.addConstraint(Sketcher.Constraint("DistanceY", 2, 3, -1, 1, Q("26.6456 mm")))
sketch15.addConstraint(Sketcher.Constraint("DistanceY", 6, 3, -1, 1, Q("47.7602 mm")))
pocket14 = doc.addObject("PartDesign::Pocket", "Pocket013")
body.addObject(pocket14)
pocket14.Profile = sketch15
pocket14.Length = 5

doc.recompute()
